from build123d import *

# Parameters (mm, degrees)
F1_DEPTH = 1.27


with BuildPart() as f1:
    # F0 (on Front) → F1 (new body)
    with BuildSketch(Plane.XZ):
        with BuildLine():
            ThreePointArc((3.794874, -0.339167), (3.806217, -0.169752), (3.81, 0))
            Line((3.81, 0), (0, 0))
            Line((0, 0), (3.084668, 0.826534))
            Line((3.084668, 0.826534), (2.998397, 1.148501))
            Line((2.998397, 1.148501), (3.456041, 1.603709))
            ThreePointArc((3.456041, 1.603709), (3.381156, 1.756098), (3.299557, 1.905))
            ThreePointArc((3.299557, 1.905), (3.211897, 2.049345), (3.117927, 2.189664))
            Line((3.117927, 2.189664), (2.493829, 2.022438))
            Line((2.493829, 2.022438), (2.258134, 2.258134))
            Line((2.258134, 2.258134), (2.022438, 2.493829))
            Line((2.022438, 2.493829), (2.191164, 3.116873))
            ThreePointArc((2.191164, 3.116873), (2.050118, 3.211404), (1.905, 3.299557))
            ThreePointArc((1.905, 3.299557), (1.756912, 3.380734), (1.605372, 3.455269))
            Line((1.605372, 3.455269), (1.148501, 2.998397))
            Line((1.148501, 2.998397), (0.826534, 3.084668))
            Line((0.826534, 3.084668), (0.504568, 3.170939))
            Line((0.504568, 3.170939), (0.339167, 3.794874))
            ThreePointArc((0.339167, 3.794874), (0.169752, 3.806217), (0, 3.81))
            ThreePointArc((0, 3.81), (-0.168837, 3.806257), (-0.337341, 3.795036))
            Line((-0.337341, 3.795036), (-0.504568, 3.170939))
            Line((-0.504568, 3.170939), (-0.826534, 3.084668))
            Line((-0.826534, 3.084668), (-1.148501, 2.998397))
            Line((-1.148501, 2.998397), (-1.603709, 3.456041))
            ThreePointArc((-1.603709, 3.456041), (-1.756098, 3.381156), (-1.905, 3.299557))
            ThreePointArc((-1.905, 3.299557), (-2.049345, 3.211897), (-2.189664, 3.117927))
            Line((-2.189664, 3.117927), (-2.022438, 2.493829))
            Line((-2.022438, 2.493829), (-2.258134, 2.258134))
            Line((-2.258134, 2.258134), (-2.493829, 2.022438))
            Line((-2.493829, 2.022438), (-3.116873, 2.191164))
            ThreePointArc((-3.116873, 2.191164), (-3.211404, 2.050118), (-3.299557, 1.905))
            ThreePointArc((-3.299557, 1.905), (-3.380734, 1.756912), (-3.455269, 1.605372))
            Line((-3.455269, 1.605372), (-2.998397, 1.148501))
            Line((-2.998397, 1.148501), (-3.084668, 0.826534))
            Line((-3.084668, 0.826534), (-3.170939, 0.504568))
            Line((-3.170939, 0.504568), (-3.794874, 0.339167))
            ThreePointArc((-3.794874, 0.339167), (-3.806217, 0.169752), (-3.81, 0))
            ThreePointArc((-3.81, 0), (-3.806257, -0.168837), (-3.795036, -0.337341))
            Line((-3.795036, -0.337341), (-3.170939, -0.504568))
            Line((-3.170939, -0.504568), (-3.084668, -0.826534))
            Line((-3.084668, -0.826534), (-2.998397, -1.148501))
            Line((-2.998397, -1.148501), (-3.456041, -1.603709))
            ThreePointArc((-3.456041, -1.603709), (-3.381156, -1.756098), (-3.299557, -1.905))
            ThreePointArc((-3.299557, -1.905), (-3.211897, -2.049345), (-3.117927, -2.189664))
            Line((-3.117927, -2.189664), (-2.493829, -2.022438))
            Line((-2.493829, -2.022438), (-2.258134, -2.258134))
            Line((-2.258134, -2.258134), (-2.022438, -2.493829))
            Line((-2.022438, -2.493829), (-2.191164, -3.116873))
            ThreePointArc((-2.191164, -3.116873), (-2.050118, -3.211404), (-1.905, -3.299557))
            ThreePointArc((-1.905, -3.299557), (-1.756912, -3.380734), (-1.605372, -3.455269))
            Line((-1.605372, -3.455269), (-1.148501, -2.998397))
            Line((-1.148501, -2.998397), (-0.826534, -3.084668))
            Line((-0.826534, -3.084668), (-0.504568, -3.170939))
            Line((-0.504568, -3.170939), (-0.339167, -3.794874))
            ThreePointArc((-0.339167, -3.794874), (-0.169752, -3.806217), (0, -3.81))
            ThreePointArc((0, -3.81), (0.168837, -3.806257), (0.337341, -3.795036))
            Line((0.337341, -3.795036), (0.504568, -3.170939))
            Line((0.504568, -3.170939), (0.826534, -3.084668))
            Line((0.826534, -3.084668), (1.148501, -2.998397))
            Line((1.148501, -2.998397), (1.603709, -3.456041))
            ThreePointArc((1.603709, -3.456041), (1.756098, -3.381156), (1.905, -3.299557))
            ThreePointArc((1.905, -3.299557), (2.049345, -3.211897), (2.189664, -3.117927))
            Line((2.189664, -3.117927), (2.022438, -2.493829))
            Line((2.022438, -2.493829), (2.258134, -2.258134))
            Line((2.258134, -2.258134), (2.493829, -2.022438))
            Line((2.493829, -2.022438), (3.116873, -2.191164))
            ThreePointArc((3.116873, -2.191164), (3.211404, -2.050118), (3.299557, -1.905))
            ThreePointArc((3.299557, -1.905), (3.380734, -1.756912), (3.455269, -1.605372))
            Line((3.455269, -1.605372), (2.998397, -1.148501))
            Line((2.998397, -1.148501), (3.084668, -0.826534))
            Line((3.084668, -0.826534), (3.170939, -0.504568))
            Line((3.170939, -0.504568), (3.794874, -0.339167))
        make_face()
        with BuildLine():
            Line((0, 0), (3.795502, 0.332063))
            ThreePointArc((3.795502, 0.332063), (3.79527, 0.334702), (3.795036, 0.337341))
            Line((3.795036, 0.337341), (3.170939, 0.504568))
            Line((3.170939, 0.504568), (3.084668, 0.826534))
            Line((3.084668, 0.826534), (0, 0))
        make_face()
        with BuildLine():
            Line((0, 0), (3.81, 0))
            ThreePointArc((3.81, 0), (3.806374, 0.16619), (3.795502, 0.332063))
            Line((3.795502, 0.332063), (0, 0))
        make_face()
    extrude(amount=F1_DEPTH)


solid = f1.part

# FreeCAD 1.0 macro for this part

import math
import FreeCAD as App
import Part
import Sketcher
Q = App.Units.Quantity

doc = App.newDocument("Part")
body = doc.addObject("PartDesign::Body", "Body")

sketch1 = body.newObject("Sketcher::SketchObject", "Sketch")
sketch1.AttachmentSupport = (doc.getObject("XZ_Plane"), [""])
sketch1.MapMode = "FlatFace"
sketch1.addGeometry([
    Part.ArcOfCircle(Part.Circle(App.Vector(0.000281, -0.000017, 0), App.Vector(0, 0, 1), 3.809719), math.radians(-5.107366), math.radians(0.000253)),
    Part.ArcOfCircle(Part.Circle(App.Vector(0.000208, 0.000011, 0), App.Vector(0, 0, 1), 3.809792), math.radians(-0.000165), math.radians(5.000102)),
    Part.ArcOfCircle(Part.Circle(App.Vector(0.285964, 0.024862, 0), App.Vector(0, 0, 1), 3.522957), math.radians(5.002533), math.radians(5.088706)),
    Part.LineSegment(App.Vector(3.795036, 0.337341, 0), App.Vector(3.170939, 0.504568, 0)),
    Part.LineSegment(App.Vector(3.170939, 0.504568, 0), App.Vector(3.084668, 0.826534, 0)),
    Part.LineSegment(App.Vector(3.084668, 0.826534, 0), App.Vector(2.998397, 1.148501, 0)),
    Part.LineSegment(App.Vector(2.998397, 1.148501, 0), App.Vector(3.456041, 1.603709, 0)),
    Part.ArcOfCircle(Part.Circle(App.Vector(-0.000655, -0.000341, 0), App.Vector(0, 0, 1), 3.810739), math.radians(24.893253), math.radians(29.999516)),
    Part.ArcOfCircle(Part.Circle(App.Vector(-0.000226, -0.000152, 0), App.Vector(0, 0, 1), 3.810272), math.radians(30.000273), math.radians(35.079589)),
    Part.LineSegment(App.Vector(3.117927, 2.189664, 0), App.Vector(2.493829, 2.022438, 0)),
    Part.LineSegment(App.Vector(2.493829, 2.022438, 0), App.Vector(2.258134, 2.258134, 0)),
    Part.LineSegment(App.Vector(2.258134, 2.258134, 0), App.Vector(2.022438, 2.493829, 0)),
    Part.LineSegment(App.Vector(2.022438, 2.493829, 0), App.Vector(2.191164, 3.116873, 0)),
    Part.ArcOfCircle(Part.Circle(App.Vector(0.000014, 0.000035, 0), App.Vector(0, 0, 1), 3.809963), math.radians(54.892631), math.radians(59.999929)),
    Part.ArcOfCircle(Part.Circle(App.Vector(-0.000009, -0.000011, 0), App.Vector(0, 0, 1), 3.810014), math.radians(59.999972), math.radians(65.079635)),
    Part.LineSegment(App.Vector(1.605372, 3.455269, 0), App.Vector(1.148501, 2.998397, 0)),
    Part.LineSegment(App.Vector(1.148501, 2.998397, 0), App.Vector(0.826534, 3.084668, 0)),
    Part.LineSegment(App.Vector(0.826534, 3.084668, 0), App.Vector(0.504568, 3.170939, 0)),
    Part.LineSegment(App.Vector(0.504568, 3.170939, 0), App.Vector(0.339167, 3.794874, 0)),
    Part.ArcOfCircle(Part.Circle(App.Vector(0.000017, 0.000281, 0), App.Vector(0, 0, 1), 3.809719), math.radians(84.892634), math.radians(90.000253)),
    Part.ArcOfCircle(Part.Circle(App.Vector(0.000006, -0.000042, 0), App.Vector(0, 0, 1), 3.810042), math.radians(90.00009), math.radians(95.079709)),
    Part.LineSegment(App.Vector(-0.337341, 3.795036, 0), App.Vector(-0.504568, 3.170939, 0)),
    Part.LineSegment(App.Vector(-0.504568, 3.170939, 0), App.Vector(-0.826534, 3.084668, 0)),
    Part.LineSegment(App.Vector(-0.826534, 3.084668, 0), App.Vector(-1.148501, 2.998397, 0)),
    Part.LineSegment(App.Vector(-1.148501, 2.998397, 0), App.Vector(-1.603709, 3.456041, 0)),
    Part.ArcOfCircle(Part.Circle(App.Vector(0.000341, -0.000655, 0), App.Vector(0, 0, 1), 3.810739), math.radians(114.893253), math.radians(119.999516)),
    Part.ArcOfCircle(Part.Circle(App.Vector(0.000152, -0.000226, 0), App.Vector(0, 0, 1), 3.810272), math.radians(120.000273), math.radians(125.079589)),
    Part.LineSegment(App.Vector(-2.189664, 3.117927, 0), App.Vector(-2.022438, 2.493829, 0)),
    Part.LineSegment(App.Vector(-2.022438, 2.493829, 0), App.Vector(-2.258134, 2.258134, 0)),
    Part.LineSegment(App.Vector(-2.258134, 2.258134, 0), App.Vector(-2.493829, 2.022438, 0)),
    Part.LineSegment(App.Vector(-2.493829, 2.022438, 0), App.Vector(-3.116873, 2.191164, 0)),
    Part.ArcOfCircle(Part.Circle(App.Vector(-0.000035, 0.000014, 0), App.Vector(0, 0, 1), 3.809963), math.radians(144.892631), math.radians(149.999929)),
    Part.ArcOfCircle(Part.Circle(App.Vector(0.000011, -0.000009, 0), App.Vector(0, 0, 1), 3.810014), math.radians(149.999972), math.radians(155.079635)),
    Part.LineSegment(App.Vector(-3.455269, 1.605372, 0), App.Vector(-2.998397, 1.148501, 0)),
    Part.LineSegment(App.Vector(-2.998397, 1.148501, 0), App.Vector(-3.084668, 0.826534, 0)),
    Part.LineSegment(App.Vector(-3.084668, 0.826534, 0), App.Vector(-3.170939, 0.504568, 0)),
    Part.LineSegment(App.Vector(-3.170939, 0.504568, 0), App.Vector(-3.794874, 0.339167, 0)),
    Part.ArcOfCircle(Part.Circle(App.Vector(-0.000281, 0.000017, 0), App.Vector(0, 0, 1), 3.809719), math.radians(174.892634), math.radians(180.000253)),
    Part.ArcOfCircle(Part.Circle(App.Vector(0.000042, 0.000006, 0), App.Vector(0, 0, 1), 3.810042), math.radians(-179.99991), math.radians(-174.920291)),
    Part.LineSegment(App.Vector(-3.795036, -0.337341, 0), App.Vector(-3.170939, -0.504568, 0)),
    Part.LineSegment(App.Vector(-3.170939, -0.504568, 0), App.Vector(-3.084668, -0.826534, 0)),
    Part.LineSegment(App.Vector(-3.084668, -0.826534, 0), App.Vector(-2.998397, -1.148501, 0)),
    Part.LineSegment(App.Vector(-2.998397, -1.148501, 0), App.Vector(-3.456041, -1.603709, 0)),
    Part.ArcOfCircle(Part.Circle(App.Vector(0.000655, 0.000341, 0), App.Vector(0, 0, 1), 3.810739), math.radians(-155.106747), math.radians(-150.000484)),
    Part.ArcOfCircle(Part.Circle(App.Vector(0.000226, 0.000152, 0), App.Vector(0, 0, 1), 3.810272), math.radians(-149.999727), math.radians(-144.920411)),
    Part.LineSegment(App.Vector(-3.117927, -2.189664, 0), App.Vector(-2.493829, -2.022438, 0)),
    Part.LineSegment(App.Vector(-2.493829, -2.022438, 0), App.Vector(-2.258134, -2.258134, 0)),
    Part.LineSegment(App.Vector(-2.258134, -2.258134, 0), App.Vector(-2.022438, -2.493829, 0)),
    Part.LineSegment(App.Vector(-2.022438, -2.493829, 0), App.Vector(-2.191164, -3.116873, 0)),
    Part.ArcOfCircle(Part.Circle(App.Vector(-0.000014, -0.000035, 0), App.Vector(0, 0, 1), 3.809963), math.radians(-125.107369), math.radians(-120.000071)),
    Part.ArcOfCircle(Part.Circle(App.Vector(0.000009, 0.000011, 0), App.Vector(0, 0, 1), 3.810014), math.radians(-120.000028), math.radians(-114.920365)),
    Part.LineSegment(App.Vector(-1.605372, -3.455269, 0), App.Vector(-1.148501, -2.998397, 0)),
    Part.LineSegment(App.Vector(-1.148501, -2.998397, 0), App.Vector(-0.826534, -3.084668, 0)),
    Part.LineSegment(App.Vector(-0.826534, -3.084668, 0), App.Vector(-0.504568, -3.170939, 0)),
    Part.LineSegment(App.Vector(-0.504568, -3.170939, 0), App.Vector(-0.339167, -3.794874, 0)),
    Part.ArcOfCircle(Part.Circle(App.Vector(-0.000017, -0.000281, 0), App.Vector(0, 0, 1), 3.809719), math.radians(-95.107366), math.radians(-89.999747)),
    Part.ArcOfCircle(Part.Circle(App.Vector(-0.000006, 0.000042, 0), App.Vector(0, 0, 1), 3.810042), math.radians(-89.99991), math.radians(-84.920291)),
    Part.LineSegment(App.Vector(0.337341, -3.795036, 0), App.Vector(0.504568, -3.170939, 0)),
    Part.LineSegment(App.Vector(0.504568, -3.170939, 0), App.Vector(0.826534, -3.084668, 0)),
    Part.LineSegment(App.Vector(0.826534, -3.084668, 0), App.Vector(1.148501, -2.998397, 0)),
    Part.LineSegment(App.Vector(1.148501, -2.998397, 0), App.Vector(1.603709, -3.456041, 0)),
    Part.ArcOfCircle(Part.Circle(App.Vector(-0.000341, 0.000655, 0), App.Vector(0, 0, 1), 3.810739), math.radians(-65.106747), math.radians(-60.000484)),
    Part.ArcOfCircle(Part.Circle(App.Vector(-0.000152, 0.000226, 0), App.Vector(0, 0, 1), 3.810272), math.radians(-59.999727), math.radians(-54.920411)),
    Part.LineSegment(App.Vector(2.189664, -3.117927, 0), App.Vector(2.022438, -2.493829, 0)),
    Part.LineSegment(App.Vector(2.022438, -2.493829, 0), App.Vector(2.258134, -2.258134, 0)),
    Part.LineSegment(App.Vector(2.258134, -2.258134, 0), App.Vector(2.493829, -2.022438, 0)),
    Part.LineSegment(App.Vector(2.493829, -2.022438, 0), App.Vector(3.116873, -2.191164, 0)),
    Part.ArcOfCircle(Part.Circle(App.Vector(0.000035, -0.000014, 0), App.Vector(0, 0, 1), 3.809963), math.radians(-35.107369), math.radians(-30.000071)),
    Part.ArcOfCircle(Part.Circle(App.Vector(-0.000011, 0.000009, 0), App.Vector(0, 0, 1), 3.810014), math.radians(-30.000028), math.radians(-24.920365)),
    Part.LineSegment(App.Vector(3.455269, -1.605372, 0), App.Vector(2.998397, -1.148501, 0)),
    Part.LineSegment(App.Vector(2.998397, -1.148501, 0), App.Vector(3.084668, -0.826534, 0)),
    Part.LineSegment(App.Vector(3.084668, -0.826534, 0), App.Vector(3.170939, -0.504568, 0)),
    Part.LineSegment(App.Vector(3.170939, -0.504568, 0), App.Vector(3.794874, -0.339167, 0)),
], False)
sketch1.addConstraint([
    Sketcher.Constraint("Coincident", 0, 2, 1, 1),
    Sketcher.Constraint("Coincident", 1, 2, 2, 1),
    Sketcher.Constraint("Coincident", 2, 2, 3, 1),
    Sketcher.Constraint("Coincident", 3, 2, 4, 1),
    Sketcher.Constraint("Coincident", 4, 2, 5, 1),
    Sketcher.Constraint("Coincident", 5, 2, 6, 1),
    Sketcher.Constraint("Coincident", 6, 2, 7, 1),
    Sketcher.Constraint("Coincident", 7, 2, 8, 1),
    Sketcher.Constraint("Coincident", 8, 2, 9, 1),
    Sketcher.Constraint("Coincident", 9, 2, 10, 1),
    Sketcher.Constraint("Coincident", 10, 2, 11, 1),
    Sketcher.Constraint("Coincident", 11, 2, 12, 1),
    Sketcher.Constraint("Coincident", 12, 2, 13, 1),
    Sketcher.Constraint("Tangent", 13, 2, 14, 1),
    Sketcher.Constraint("Coincident", 14, 2, 15, 1),
    Sketcher.Constraint("Coincident", 15, 2, 16, 1),
    Sketcher.Constraint("Coincident", 16, 2, 17, 1),
    Sketcher.Constraint("Coincident", 17, 2, 18, 1),
    Sketcher.Constraint("Coincident", 18, 2, 19, 1),
    Sketcher.Constraint("Coincident", 19, 2, 20, 1),
    Sketcher.Constraint("Coincident", 20, 2, 21, 1),
    Sketcher.Constraint("Coincident", 21, 2, 22, 1),
    Sketcher.Constraint("Coincident", 22, 2, 23, 1),
    Sketcher.Constraint("Coincident", 23, 2, 24, 1),
    Sketcher.Constraint("Coincident", 24, 2, 25, 1),
    Sketcher.Constraint("Coincident", 25, 2, 26, 1),
    Sketcher.Constraint("Coincident", 26, 2, 27, 1),
    Sketcher.Constraint("Coincident", 27, 2, 28, 1),
    Sketcher.Constraint("Coincident", 28, 2, 29, 1),
    Sketcher.Constraint("Coincident", 29, 2, 30, 1),
    Sketcher.Constraint("Coincident", 30, 2, 31, 1),
    Sketcher.Constraint("Tangent", 31, 2, 32, 1),
    Sketcher.Constraint("Coincident", 32, 2, 33, 1),
    Sketcher.Constraint("Coincident", 33, 2, 34, 1),
    Sketcher.Constraint("Coincident", 34, 2, 35, 1),
    Sketcher.Constraint("Coincident", 35, 2, 36, 1),
    Sketcher.Constraint("Coincident", 36, 2, 37, 1),
    Sketcher.Constraint("Coincident", 37, 2, 38, 1),
    Sketcher.Constraint("Coincident", 38, 2, 39, 1),
    Sketcher.Constraint("Coincident", 39, 2, 40, 1),
    Sketcher.Constraint("Coincident", 40, 2, 41, 1),
    Sketcher.Constraint("Coincident", 41, 2, 42, 1),
    Sketcher.Constraint("Coincident", 42, 2, 43, 1),
    Sketcher.Constraint("Coincident", 43, 2, 44, 1),
    Sketcher.Constraint("Coincident", 44, 2, 45, 1),
    Sketcher.Constraint("Coincident", 45, 2, 46, 1),
    Sketcher.Constraint("Coincident", 46, 2, 47, 1),
    Sketcher.Constraint("Coincident", 47, 2, 48, 1),
    Sketcher.Constraint("Coincident", 48, 2, 49, 1),
    Sketcher.Constraint("Tangent", 49, 2, 50, 1),
    Sketcher.Constraint("Coincident", 50, 2, 51, 1),
    Sketcher.Constraint("Coincident", 51, 2, 52, 1),
    Sketcher.Constraint("Coincident", 52, 2, 53, 1),
    Sketcher.Constraint("Coincident", 53, 2, 54, 1),
    Sketcher.Constraint("Coincident", 54, 2, 55, 1),
    Sketcher.Constraint("Coincident", 55, 2, 56, 1),
    Sketcher.Constraint("Coincident", 56, 2, 57, 1),
    Sketcher.Constraint("Coincident", 57, 2, 58, 1),
    Sketcher.Constraint("Coincident", 58, 2, 59, 1),
    Sketcher.Constraint("Coincident", 59, 2, 60, 1),
    Sketcher.Constraint("Coincident", 60, 2, 61, 1),
    Sketcher.Constraint("Coincident", 61, 2, 62, 1),
    Sketcher.Constraint("Coincident", 62, 2, 63, 1),
    Sketcher.Constraint("Coincident", 63, 2, 64, 1),
    Sketcher.Constraint("Coincident", 64, 2, 65, 1),
    Sketcher.Constraint("Coincident", 65, 2, 66, 1),
    Sketcher.Constraint("Coincident", 66, 2, 67, 1),
    Sketcher.Constraint("Tangent", 67, 2, 68, 1),
    Sketcher.Constraint("Coincident", 68, 2, 69, 1),
    Sketcher.Constraint("Coincident", 69, 2, 70, 1),
    Sketcher.Constraint("Coincident", 70, 2, 71, 1),
    Sketcher.Constraint("Coincident", 71, 2, 72, 1),
    Sketcher.Constraint("Coincident", 72, 2, 0, 1),
    Sketcher.Constraint("Equal", 0, 19),
    Sketcher.Constraint("Equal", 7, 25),
    Sketcher.Constraint("Equal", 8, 26),
    Sketcher.Constraint("Equal", 13, 31),
    Sketcher.Constraint("Equal", 14, 32),
    Sketcher.Constraint("Equal", 19, 37),
    Sketcher.Constraint("Equal", 20, 38),
    Sketcher.Constraint("Equal", 25, 43),
    Sketcher.Constraint("Equal", 26, 44),
    Sketcher.Constraint("Equal", 31, 49),
    Sketcher.Constraint("Equal", 32, 50),
    Sketcher.Constraint("Equal", 37, 55),
    Sketcher.Constraint("Equal", 38, 56),
    Sketcher.Constraint("Equal", 43, 61),
    Sketcher.Constraint("Equal", 44, 62),
    Sketcher.Constraint("Equal", 49, 67),
    Sketcher.Constraint("Equal", 50, 68),
    Sketcher.Constraint("Symmetric", 0, 3, 37, 3, -1, 1),
    Sketcher.Constraint("Symmetric", 7, 3, 43, 3, -1, 1),
    Sketcher.Constraint("Symmetric", 13, 3, 49, 3, -1, 1),
    Sketcher.Constraint("Symmetric", 19, 3, 55, 3, -1, 1),
    Sketcher.Constraint("Symmetric", 25, 3, 61, 3, -1, 1),
    Sketcher.Constraint("Symmetric", 31, 3, 67, 3, -1, 1),
    Sketcher.Constraint("Symmetric", 2, 2, 38, 2, -1, 1),
    Sketcher.Constraint("Symmetric", 3, 2, 39, 2, -1, 1),
    Sketcher.Constraint("Symmetric", 4, 2, 40, 2, -1, 1),
    Sketcher.Constraint("Symmetric", 5, 2, 41, 2, -1, 1),
    Sketcher.Constraint("Symmetric", 8, 2, 44, 2, -1, 1),
    Sketcher.Constraint("Symmetric", 9, 2, 45, 2, -1, 1),
    Sketcher.Constraint("Symmetric", 10, 2, 46, 2, -1, 1),
    Sketcher.Constraint("Symmetric", 11, 2, 47, 2, -1, 1),
    Sketcher.Constraint("Symmetric", 15, 2, 51, 2, -1, 1),
    Sketcher.Constraint("Symmetric", 16, 2, 52, 2, -1, 1),
    Sketcher.Constraint("Symmetric", 17, 2, 53, 2, -1, 1),
    Sketcher.Constraint("Symmetric", 20, 2, 56, 2, -1, 1),
    Sketcher.Constraint("Symmetric", 21, 2, 57, 2, -1, 1),
    Sketcher.Constraint("Symmetric", 22, 2, 58, 2, -1, 1),
    Sketcher.Constraint("Symmetric", 23, 2, 59, 2, -1, 1),
    Sketcher.Constraint("Symmetric", 26, 2, 62, 2, -1, 1),
    Sketcher.Constraint("Symmetric", 27, 2, 63, 2, -1, 1),
    Sketcher.Constraint("Symmetric", 28, 2, 64, 2, -1, 1),
    Sketcher.Constraint("Symmetric", 29, 2, 65, 2, -1, 1),
    Sketcher.Constraint("Symmetric", 33, 2, 69, 2, -1, 1),
    Sketcher.Constraint("Symmetric", 34, 2, 70, 2, -1, 1),
    Sketcher.Constraint("Symmetric", 35, 2, 71, 2, -1, 1),
    Sketcher.Constraint("Symmetric", 14, 3, 32, 3, -2),
    Sketcher.Constraint("Symmetric", 17, 2, 21, 2, -2),
    Sketcher.Constraint("Symmetric", 16, 2, 22, 2, -2),
    Sketcher.Constraint("Symmetric", 15, 2, 23, 2, -2),
    Sketcher.Constraint("Symmetric", 13, 2, 25, 2, -2),
    Sketcher.Constraint("Symmetric", 11, 2, 27, 2, -2),
    Sketcher.Constraint("Symmetric", 10, 2, 28, 2, -2),
    Sketcher.Constraint("Symmetric", 9, 2, 29, 2, -2),
    Sketcher.Constraint("Symmetric", 7, 2, 31, 2, -2),
    Sketcher.Constraint("Symmetric", 5, 2, 33, 2, -2),
    Sketcher.Constraint("Symmetric", 4, 2, 34, 2, -2),
    Sketcher.Constraint("Symmetric", 3, 2, 35, 2, -2),
    Sketcher.Constraint("PointOnObject", 0, 2, -1),
    Sketcher.Constraint("PointOnObject", 19, 2, -2),
    Sketcher.Constraint("PointOnObject", 37, 2, -1),
    Sketcher.Constraint("PointOnObject", 55, 2, -2),
    Sketcher.Constraint("Parallel", 4, 5),
    Sketcher.Constraint("Perpendicular", 5, 9),
    Sketcher.Constraint("Perpendicular", 11, 15),
    Sketcher.Constraint("Parallel", 3, 16),
    Sketcher.Constraint("Parallel", 16, 17),
    Sketcher.Constraint("Perpendicular", 17, 21),
    Sketcher.Constraint("Perpendicular", 5, 22),
    Sketcher.Constraint("Perpendicular", 6, 24),
    Sketcher.Constraint("Perpendicular", 23, 27),
    Sketcher.Constraint("Perpendicular", 10, 28),
    Sketcher.Constraint("Perpendicular", 12, 30),
    Sketcher.Constraint("Perpendicular", 29, 33),
    Sketcher.Constraint("Perpendicular", 18, 36),
    Sketcher.Constraint("Perpendicular", 24, 42),
    Sketcher.Constraint("Perpendicular", 30, 48),
    Sketcher.Constraint("Perpendicular", 47, 51),
    Sketcher.Constraint("Perpendicular", 36, 54),
    Sketcher.Constraint("Perpendicular", 42, 60),
    Sketcher.Constraint("Perpendicular", 48, 66),
    Sketcher.Constraint("Perpendicular", 65, 69),
    Sketcher.Constraint("Perpendicular", 54, 72),
    Sketcher.Constraint("Horizontal", 1, 3, 50, 3),
    Sketcher.Constraint("Horizontal", 49, 2, 61, 2),
    Sketcher.Constraint("Horizontal", 43, 2, 67, 2),
    Sketcher.Constraint("Vertical", 31, 2, 43, 2),
    Sketcher.Constraint("Vertical", 25, 2, 49, 2),
    Sketcher.Constraint("Equal", 4, 5),
    Sketcher.Constraint("Equal", 3, 9),
    Sketcher.Constraint("Equal", 5, 10),
    Sketcher.Constraint("Equal", 10, 11),
    Sketcher.Constraint("Equal", 6, 12),
    Sketcher.Constraint("Equal", 9, 15),
    Sketcher.Constraint("Equal", 11, 16),
    Sketcher.Constraint("Equal", 16, 17),
    Sketcher.Constraint("Equal", 12, 18),
    Sketcher.Constraint("Equal", 15, 21),
    Sketcher.Constraint("Equal", 18, 24),
    Sketcher.Constraint("Equal", 21, 27),
    Sketcher.Constraint("Equal", 24, 30),
    Sketcher.Constraint("Equal", 27, 33),
    Sketcher.Constraint("Equal", 30, 36),
    Sketcher.Constraint("DistanceX", -1, 1, 0, 2, Q("0.15 in")),
    Sketcher.Constraint("DistanceY", -1, 1, 19, 2, Q("0.15 in")),
    Sketcher.Constraint("DistanceY", -1, 1, 7, 2, Q("0.075 in")),
    Sketcher.Constraint("DistanceX", -1, 1, 13, 2, Q("0.075 in")),
    Sketcher.Constraint("Radius", 0, Q("3.809719 mm")),
    Sketcher.Constraint("Radius", 7, Q("3.810739 mm")),
    Sketcher.Constraint("Radius", 8, Q("3.810272 mm")),
    Sketcher.Constraint("Radius", 20, Q("3.810042 mm")),
    Sketcher.Constraint("Radius", 1, Q("3.809792 mm")),
    Sketcher.Constraint("Radius", 2, Q("3.522957 mm")),
    Sketcher.Constraint("Radius", 13, Q("3.809963 mm")),
    Sketcher.Constraint("Radius", 14, Q("3.810014 mm")),
    Sketcher.Constraint("DistanceY", -1, 1, 5, 2, Q("1.148501 mm")),
    Sketcher.Constraint("DistanceX", -1, 1, 15, 2, Q("1.148501 mm")),
    Sketcher.Constraint("DistanceY", -1, 1, 2, 3, Q("0.024862 mm")),
    Sketcher.Constraint("DistanceY", 7, 3, -1, 1, Q("0.000341 mm")),
    Sketcher.Constraint("DistanceY", 8, 3, -1, 1, Q("0.000152 mm")),
    Sketcher.Constraint("DistanceX", -1, 1, 25, 3, Q("0.000341 mm")),
    Sketcher.Constraint("DistanceY", -1, 1, 2, 2, Q("0.337341 mm")),
    Sketcher.Constraint("DistanceX", -1, 1, 3, 2, Q("3.170939 mm")),
    Sketcher.Constraint("DistanceY", -1, 1, 3, 2, Q("0.504568 mm")),
    Sketcher.Constraint("DistanceX", -1, 1, 6, 2, Q("3.456041 mm")),
    Sketcher.Constraint("DistanceY", -1, 1, 6, 2, Q("1.603709 mm")),
    Sketcher.Constraint("DistanceX", -1, 1, 1, 2, Q("3.795502 mm")),
    Sketcher.Constraint("DistanceX", -1, 1, 18, 2, Q("0.339167 mm")),
])
pad1 = body.newObject("PartDesign::Pad", "Pad")
pad1.Profile = sketch1
pad1.Length = Q("0.05 in")

doc.recompute()
